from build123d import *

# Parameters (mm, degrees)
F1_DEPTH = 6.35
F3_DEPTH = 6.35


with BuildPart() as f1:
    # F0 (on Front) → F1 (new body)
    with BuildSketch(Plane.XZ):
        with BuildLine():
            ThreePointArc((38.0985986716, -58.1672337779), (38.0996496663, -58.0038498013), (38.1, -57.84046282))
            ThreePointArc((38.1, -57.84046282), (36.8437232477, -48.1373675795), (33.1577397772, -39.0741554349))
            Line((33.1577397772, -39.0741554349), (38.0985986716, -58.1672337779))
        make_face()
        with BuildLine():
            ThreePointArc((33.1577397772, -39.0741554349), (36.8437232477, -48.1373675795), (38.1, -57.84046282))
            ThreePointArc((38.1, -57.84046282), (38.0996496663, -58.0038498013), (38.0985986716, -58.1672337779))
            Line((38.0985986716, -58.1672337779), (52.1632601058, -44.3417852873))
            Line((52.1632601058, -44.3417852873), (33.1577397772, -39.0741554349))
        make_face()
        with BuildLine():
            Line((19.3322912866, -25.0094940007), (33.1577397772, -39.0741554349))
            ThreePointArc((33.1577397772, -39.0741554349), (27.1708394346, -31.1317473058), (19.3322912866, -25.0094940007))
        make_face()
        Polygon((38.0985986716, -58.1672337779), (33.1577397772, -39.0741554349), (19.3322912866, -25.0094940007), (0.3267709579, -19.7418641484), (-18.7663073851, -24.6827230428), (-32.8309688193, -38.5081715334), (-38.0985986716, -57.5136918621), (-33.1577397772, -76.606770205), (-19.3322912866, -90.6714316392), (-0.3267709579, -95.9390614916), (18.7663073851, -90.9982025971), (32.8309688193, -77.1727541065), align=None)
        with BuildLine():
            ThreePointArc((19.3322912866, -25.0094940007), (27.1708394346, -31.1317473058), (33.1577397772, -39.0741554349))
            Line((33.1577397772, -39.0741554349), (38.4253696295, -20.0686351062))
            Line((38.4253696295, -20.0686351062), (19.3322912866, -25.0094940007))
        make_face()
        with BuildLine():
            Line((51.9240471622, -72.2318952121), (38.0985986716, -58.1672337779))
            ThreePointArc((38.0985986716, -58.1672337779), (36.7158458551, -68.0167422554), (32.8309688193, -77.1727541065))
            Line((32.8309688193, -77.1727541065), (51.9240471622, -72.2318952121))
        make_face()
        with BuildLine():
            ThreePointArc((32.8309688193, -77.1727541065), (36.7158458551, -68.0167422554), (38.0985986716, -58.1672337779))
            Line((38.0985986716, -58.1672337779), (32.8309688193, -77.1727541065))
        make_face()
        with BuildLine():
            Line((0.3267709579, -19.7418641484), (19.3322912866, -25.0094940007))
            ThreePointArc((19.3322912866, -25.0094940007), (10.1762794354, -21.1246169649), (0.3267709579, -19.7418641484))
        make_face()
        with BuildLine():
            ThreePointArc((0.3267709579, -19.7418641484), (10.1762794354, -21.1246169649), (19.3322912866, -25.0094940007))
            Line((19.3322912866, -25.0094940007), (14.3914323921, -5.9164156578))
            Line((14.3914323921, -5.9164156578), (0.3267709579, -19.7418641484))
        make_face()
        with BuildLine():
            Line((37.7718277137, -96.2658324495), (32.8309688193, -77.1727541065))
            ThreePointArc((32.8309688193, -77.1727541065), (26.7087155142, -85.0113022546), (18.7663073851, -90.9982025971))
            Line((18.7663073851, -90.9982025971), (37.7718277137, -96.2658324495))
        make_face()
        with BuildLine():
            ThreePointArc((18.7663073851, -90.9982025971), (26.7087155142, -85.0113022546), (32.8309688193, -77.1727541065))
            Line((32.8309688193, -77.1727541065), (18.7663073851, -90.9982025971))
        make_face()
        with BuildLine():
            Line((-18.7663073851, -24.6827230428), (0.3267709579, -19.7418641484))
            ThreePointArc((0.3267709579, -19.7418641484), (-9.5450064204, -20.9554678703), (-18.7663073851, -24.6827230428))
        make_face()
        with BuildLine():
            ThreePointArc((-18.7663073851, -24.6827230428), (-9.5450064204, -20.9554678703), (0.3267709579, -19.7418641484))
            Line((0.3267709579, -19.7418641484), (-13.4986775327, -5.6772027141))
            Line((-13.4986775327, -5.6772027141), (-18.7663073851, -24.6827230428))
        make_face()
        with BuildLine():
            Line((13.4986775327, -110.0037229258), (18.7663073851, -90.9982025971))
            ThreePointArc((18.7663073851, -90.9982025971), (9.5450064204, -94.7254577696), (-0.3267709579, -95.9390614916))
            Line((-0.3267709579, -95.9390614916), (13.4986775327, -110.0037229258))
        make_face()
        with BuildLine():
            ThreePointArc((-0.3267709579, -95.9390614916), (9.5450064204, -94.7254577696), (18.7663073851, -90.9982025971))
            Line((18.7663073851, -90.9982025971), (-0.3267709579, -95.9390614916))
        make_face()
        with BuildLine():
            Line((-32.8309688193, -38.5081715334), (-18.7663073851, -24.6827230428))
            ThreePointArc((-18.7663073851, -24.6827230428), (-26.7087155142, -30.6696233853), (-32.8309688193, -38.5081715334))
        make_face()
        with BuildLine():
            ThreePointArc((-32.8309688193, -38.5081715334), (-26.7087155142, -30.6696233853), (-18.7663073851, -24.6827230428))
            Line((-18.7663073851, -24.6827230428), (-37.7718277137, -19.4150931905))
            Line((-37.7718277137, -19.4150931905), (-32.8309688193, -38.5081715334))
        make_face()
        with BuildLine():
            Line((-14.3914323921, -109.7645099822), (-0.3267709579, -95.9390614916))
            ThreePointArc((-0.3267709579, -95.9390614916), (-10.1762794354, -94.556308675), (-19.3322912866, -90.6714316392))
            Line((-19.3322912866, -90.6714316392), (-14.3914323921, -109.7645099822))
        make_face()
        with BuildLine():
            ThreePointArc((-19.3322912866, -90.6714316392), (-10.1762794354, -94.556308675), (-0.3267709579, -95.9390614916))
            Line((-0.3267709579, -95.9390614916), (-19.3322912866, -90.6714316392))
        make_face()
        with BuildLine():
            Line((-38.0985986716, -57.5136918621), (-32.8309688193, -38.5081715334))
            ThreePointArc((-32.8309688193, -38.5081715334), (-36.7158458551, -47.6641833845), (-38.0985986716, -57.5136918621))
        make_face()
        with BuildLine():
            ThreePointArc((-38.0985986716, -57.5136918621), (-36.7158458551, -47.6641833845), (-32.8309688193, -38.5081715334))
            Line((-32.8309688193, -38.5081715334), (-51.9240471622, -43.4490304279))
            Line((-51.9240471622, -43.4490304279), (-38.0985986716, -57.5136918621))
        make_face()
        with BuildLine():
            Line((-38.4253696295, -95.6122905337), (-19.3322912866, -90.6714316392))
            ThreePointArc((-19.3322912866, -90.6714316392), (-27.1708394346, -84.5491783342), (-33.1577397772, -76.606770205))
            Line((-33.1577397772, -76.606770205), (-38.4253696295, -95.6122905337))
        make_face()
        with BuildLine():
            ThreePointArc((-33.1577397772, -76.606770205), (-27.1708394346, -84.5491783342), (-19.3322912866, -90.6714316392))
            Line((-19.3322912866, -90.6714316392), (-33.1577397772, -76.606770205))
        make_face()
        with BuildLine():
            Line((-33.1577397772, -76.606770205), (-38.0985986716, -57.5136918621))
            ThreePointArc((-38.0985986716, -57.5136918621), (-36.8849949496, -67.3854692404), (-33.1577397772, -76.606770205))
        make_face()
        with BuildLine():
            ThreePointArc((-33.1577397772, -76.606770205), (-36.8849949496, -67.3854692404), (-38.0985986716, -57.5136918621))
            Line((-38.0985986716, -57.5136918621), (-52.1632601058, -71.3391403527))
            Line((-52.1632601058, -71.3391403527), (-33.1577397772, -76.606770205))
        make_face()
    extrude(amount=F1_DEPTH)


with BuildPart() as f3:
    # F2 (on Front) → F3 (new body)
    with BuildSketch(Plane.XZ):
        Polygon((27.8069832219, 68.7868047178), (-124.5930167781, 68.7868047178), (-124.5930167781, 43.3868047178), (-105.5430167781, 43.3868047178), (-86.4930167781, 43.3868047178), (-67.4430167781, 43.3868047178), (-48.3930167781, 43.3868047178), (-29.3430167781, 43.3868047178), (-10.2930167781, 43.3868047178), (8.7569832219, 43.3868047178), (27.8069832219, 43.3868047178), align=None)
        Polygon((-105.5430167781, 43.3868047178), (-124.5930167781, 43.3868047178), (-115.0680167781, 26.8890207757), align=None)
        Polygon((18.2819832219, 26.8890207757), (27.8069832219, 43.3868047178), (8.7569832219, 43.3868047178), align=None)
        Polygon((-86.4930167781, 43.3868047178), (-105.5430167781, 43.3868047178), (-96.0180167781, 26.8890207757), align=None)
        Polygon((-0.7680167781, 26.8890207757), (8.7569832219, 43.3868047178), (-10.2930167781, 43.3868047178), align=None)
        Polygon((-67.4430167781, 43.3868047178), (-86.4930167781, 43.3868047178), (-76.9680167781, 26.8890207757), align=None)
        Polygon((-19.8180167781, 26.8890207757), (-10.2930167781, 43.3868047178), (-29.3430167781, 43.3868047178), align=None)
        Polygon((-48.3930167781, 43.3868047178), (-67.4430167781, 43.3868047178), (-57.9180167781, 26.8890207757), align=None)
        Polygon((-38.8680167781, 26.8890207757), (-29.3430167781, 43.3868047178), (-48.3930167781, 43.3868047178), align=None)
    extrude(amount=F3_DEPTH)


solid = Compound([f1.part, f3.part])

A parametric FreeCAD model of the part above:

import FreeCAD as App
import Part
import Sketcher
Q = App.Units.Quantity


def add_polygon(sketch, points):
    """Adds a closed chain of lines whose ends are joined by coincident constraints."""
    first, n = sketch.GeometryCount, len(points)
    for a, b in zip(points, points[1:] + points[:1]):
        sketch.addGeometry(Part.LineSegment(App.Vector(*a, 0), App.Vector(*b, 0)), False)
    for i in range(n):
        sketch.addConstraint(Sketcher.Constraint("Coincident", first + i, 2, first + (i + 1) % n, 1))

doc = App.newDocument("Part")
body = doc.addObject("PartDesign::Body", "Body")

sketch1 = body.newObject("Sketcher::SketchObject", "Sketch")
sketch1.AttachmentSupport = (doc.getObject("XZ_Plane"), [""])
sketch1.MapMode = "FlatFace"
add_polygon(sketch1, [(38, -58), (52, -44), (33, -39), (38, -20), (19, -25), (14, -6), (0, -20), (-13, -6), (-19, -25), (-38, -19), (-33, -39), (-52, -43), (-38, -58), (-52, -71), (-33, -77), (-38, -96), (-19, -91), (-14, -110), (0, -96), (13, -110), (19, -91), (38, -96), (33, -77), (52, -72)])
sketch1.addConstraint([
    Sketcher.Constraint("Perpendicular", 1, 2),
    Sketcher.Constraint("Perpendicular", 3, 4),
    Sketcher.Constraint("Parallel", 0, 5),
    Sketcher.Constraint("Perpendicular", 5, 6),
    Sketcher.Constraint("Parallel", 2, 7),
    Sketcher.Constraint("Perpendicular", 7, 8),
    Sketcher.Constraint("Parallel", 4, 9),
    Sketcher.Constraint("Perpendicular", 9, 10),
    Sketcher.Constraint("Parallel", 6, 11),
    Sketcher.Constraint("Perpendicular", 11, 12),
    Sketcher.Constraint("Parallel", 8, 13),
    Sketcher.Constraint("Perpendicular", 13, 14),
    Sketcher.Constraint("Parallel", 10, 15),
    Sketcher.Constraint("Perpendicular", 15, 16),
    Sketcher.Constraint("Parallel", 12, 17),
    Sketcher.Constraint("Perpendicular", 17, 18),
    Sketcher.Constraint("Parallel", 14, 19),
    Sketcher.Constraint("Perpendicular", 19, 20),
    Sketcher.Constraint("Parallel", 16, 21),
    Sketcher.Constraint("Perpendicular", 21, 22),
    Sketcher.Constraint("Parallel", 18, 23),
    Sketcher.Constraint("Equal", 0, 1),
    Sketcher.Constraint("Equal", 1, 2),
    Sketcher.Constraint("Equal", 2, 3),
    Sketcher.Constraint("Equal", 3, 4),
    Sketcher.Constraint("Equal", 4, 5),
    Sketcher.Constraint("Equal", 5, 6),
    Sketcher.Constraint("Equal", 6, 7),
    Sketcher.Constraint("Equal", 7, 8),
    Sketcher.Constraint("Equal", 8, 9),
    Sketcher.Constraint("Equal", 9, 10),
    Sketcher.Constraint("Equal", 10, 11),
    Sketcher.Constraint("Equal", 11, 12),
    Sketcher.Constraint("Equal", 12, 13),
    Sketcher.Constraint("Equal", 13, 14),
    Sketcher.Constraint("Equal", 14, 15),
    Sketcher.Constraint("Equal", 15, 16),
    Sketcher.Constraint("Equal", 16, 17),
    Sketcher.Constraint("Equal", 17, 18),
    Sketcher.Constraint("Equal", 18, 19),
    Sketcher.Constraint("Equal", 19, 20),
    Sketcher.Constraint("Equal", 20, 21),
    Sketcher.Constraint("DistanceX", 11, 2, -1, 1, Q("38.098599 mm")),
    Sketcher.Constraint("DistanceX", -1, 1, 23, 2, Q("38.098599 mm")),
    Sketcher.Constraint("DistanceX", 5, 2, 2, 2, Q("38.098599 mm")),
    Sketcher.Constraint("DistanceX", 7, 2, 3, 2, Q("38.098599 mm")),
    Sketcher.Constraint("DistanceY", 3, 2, 8, 2, Q("5.594401 mm")),
    Sketcher.Constraint("DistanceY", 9, 2, -1, 1, Q("38.508172 mm")),
])
pad1 = body.newObject("PartDesign::Pad", "Pad")
pad1.Profile = sketch1
pad1.Length = Q("0.25 in")
body2 = doc.addObject("PartDesign::Body", "Body001")

sketch2 = body2.newObject("Sketcher::SketchObject", "Sketch001")
sketch2.AttachmentSupport = (doc.getObject("XZ_Plane001"), [""])
sketch2.MapMode = "FlatFace"
add_polygon(sketch2, [(28, 69), (-125, 69), (-125, 43), (-115, 27), (-106, 43), (-96, 27), (-86, 43), (-77, 27), (-67, 43), (-58, 27), (-48, 43), (-39, 27), (-29, 43), (-20, 27), (-10, 43), (-1, 27), (9, 43), (18, 27), (28, 43)])
sketch2.addConstraint([
    Sketcher.Constraint("Horizontal", 0),
    Sketcher.Constraint("Vertical", 1),
    Sketcher.Constraint("Vertical", 18),
    Sketcher.Constraint("Parallel", 2, 4),
    Sketcher.Constraint("Parallel", 3, 5),
    Sketcher.Constraint("Parallel", 4, 6),
    Sketcher.Constraint("Parallel", 5, 7),
    Sketcher.Constraint("Parallel", 6, 8),
    Sketcher.Constraint("Parallel", 7, 9),
    Sketcher.Constraint("Parallel", 8, 10),
    Sketcher.Constraint("Parallel", 9, 11),
    Sketcher.Constraint("Parallel", 10, 12),
    Sketcher.Constraint("Parallel", 11, 13),
    Sketcher.Constraint("Parallel", 12, 14),
    Sketcher.Constraint("Parallel", 13, 15),
    Sketcher.Constraint("Parallel", 14, 16),
    Sketcher.Constraint("Parallel", 15, 17),
    Sketcher.Constraint("Horizontal", 1, 2, 3, 2),
    Sketcher.Constraint("Horizontal", 2, 2, 4, 2),
    Sketcher.Constraint("Horizontal", 3, 2, 5, 2),
    Sketcher.Constraint("Horizontal", 4, 2, 6, 2),
    Sketcher.Constraint("Horizontal", 5, 2, 7, 2),
    Sketcher.Constraint("Horizontal", 6, 2, 8, 2),
    Sketcher.Constraint("Horizontal", 7, 2, 9, 2),
    Sketcher.Constraint("Horizontal", 8, 2, 10, 2),
    Sketcher.Constraint("Horizontal", 9, 2, 11, 2),
    Sketcher.Constraint("Horizontal", 10, 2, 12, 2),
    Sketcher.Constraint("Horizontal", 11, 2, 13, 2),
    Sketcher.Constraint("Horizontal", 12, 2, 14, 2),
    Sketcher.Constraint("Horizontal", 13, 2, 15, 2),
    Sketcher.Constraint("Horizontal", 14, 2, 16, 2),
    Sketcher.Constraint("Horizontal", 15, 2, 17, 2),
    Sketcher.Constraint("Equal", 2, 3),
    Sketcher.Constraint("DistanceX", 0, 2, 0, 1, Q("6 in")),
    Sketcher.Constraint("DistanceY", 1, 2, 1, 1, Q("1 in")),
    Sketcher.Constraint("Angle", 2, Q("-60 deg")),
    Sketcher.Constraint("DistanceY", -1, 1, 2, 2, Q("26.889021 mm")),
    Sketcher.Constraint("DistanceX", 0, 2, -1, 1, Q("124.593017 mm")),
])
pad2 = body2.newObject("PartDesign::Pad", "Pad001")
pad2.Profile = sketch2
pad2.Length = Q("0.25 in")

doc.recompute()
